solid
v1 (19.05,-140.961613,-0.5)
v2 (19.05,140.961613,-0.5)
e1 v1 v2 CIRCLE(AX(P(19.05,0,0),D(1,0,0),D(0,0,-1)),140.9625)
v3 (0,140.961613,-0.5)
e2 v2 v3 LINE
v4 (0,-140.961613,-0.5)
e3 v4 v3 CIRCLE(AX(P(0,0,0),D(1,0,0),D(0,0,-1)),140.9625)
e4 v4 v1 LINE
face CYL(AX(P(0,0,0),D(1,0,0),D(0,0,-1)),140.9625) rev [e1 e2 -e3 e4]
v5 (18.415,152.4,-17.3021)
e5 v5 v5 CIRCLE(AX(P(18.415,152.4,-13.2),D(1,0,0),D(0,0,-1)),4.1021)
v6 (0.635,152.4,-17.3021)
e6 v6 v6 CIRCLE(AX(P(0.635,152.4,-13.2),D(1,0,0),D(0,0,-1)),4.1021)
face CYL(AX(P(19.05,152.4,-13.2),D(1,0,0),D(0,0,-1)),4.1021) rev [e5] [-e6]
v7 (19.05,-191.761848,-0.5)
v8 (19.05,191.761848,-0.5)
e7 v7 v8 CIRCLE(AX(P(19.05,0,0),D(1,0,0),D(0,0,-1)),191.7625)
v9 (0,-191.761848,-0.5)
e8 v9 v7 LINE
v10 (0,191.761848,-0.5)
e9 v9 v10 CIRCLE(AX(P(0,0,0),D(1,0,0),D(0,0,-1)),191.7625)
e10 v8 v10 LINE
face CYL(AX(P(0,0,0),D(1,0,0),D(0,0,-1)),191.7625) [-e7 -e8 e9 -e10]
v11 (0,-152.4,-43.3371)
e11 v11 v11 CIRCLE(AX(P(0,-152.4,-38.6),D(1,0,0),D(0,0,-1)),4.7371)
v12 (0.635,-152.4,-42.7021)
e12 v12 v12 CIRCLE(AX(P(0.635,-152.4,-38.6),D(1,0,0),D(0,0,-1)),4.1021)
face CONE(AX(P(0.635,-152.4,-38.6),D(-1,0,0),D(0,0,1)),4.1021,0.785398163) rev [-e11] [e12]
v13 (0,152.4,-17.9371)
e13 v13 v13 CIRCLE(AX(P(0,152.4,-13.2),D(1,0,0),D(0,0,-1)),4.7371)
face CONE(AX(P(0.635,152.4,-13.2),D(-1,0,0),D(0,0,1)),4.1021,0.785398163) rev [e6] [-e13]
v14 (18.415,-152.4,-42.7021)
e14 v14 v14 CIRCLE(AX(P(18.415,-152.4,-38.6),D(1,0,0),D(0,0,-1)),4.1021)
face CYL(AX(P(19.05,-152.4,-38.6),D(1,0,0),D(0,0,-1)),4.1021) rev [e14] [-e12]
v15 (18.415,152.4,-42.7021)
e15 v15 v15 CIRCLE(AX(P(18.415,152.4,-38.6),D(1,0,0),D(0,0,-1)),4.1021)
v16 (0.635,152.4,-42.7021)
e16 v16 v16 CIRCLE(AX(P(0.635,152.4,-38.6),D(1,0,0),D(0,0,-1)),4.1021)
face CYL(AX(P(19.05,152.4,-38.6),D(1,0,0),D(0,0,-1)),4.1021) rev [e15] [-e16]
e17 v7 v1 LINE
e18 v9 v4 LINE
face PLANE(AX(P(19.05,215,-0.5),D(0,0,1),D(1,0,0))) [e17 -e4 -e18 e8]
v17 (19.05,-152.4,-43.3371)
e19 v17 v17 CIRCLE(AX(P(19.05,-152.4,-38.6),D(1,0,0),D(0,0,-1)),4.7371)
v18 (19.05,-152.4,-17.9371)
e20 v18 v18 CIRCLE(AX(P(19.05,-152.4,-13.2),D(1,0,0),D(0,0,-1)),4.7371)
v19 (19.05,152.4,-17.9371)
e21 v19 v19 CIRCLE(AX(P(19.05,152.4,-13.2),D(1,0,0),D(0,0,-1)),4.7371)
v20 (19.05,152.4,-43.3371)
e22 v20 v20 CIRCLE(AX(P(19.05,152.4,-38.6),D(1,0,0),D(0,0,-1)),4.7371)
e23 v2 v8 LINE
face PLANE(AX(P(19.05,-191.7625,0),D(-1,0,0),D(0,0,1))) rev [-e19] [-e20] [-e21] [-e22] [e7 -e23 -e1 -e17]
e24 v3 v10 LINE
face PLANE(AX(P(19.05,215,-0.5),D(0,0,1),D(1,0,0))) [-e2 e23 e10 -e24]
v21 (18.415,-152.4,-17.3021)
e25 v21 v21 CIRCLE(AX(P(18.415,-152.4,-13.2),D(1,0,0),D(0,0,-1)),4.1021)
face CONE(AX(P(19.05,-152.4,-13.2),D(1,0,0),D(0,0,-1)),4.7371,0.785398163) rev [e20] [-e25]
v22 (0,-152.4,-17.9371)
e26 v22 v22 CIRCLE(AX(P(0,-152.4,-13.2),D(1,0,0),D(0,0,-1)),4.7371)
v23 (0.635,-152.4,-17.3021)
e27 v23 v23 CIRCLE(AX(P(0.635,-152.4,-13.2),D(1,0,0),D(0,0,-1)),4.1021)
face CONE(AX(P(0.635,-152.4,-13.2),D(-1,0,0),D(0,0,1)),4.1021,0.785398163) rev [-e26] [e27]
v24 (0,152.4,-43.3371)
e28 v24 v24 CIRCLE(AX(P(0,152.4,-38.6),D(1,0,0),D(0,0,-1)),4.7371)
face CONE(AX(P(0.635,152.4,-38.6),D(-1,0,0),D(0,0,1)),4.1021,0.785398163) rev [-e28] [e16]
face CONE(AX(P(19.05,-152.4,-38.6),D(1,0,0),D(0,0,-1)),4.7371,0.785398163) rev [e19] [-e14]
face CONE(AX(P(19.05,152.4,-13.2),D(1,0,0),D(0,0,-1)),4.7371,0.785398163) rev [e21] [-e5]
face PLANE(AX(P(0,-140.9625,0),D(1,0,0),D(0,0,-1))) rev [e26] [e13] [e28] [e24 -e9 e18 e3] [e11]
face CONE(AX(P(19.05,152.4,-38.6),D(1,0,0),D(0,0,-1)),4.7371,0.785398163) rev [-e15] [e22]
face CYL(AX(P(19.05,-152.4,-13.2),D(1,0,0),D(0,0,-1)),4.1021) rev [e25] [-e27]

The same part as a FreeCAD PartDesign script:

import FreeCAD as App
import Part
import Sketcher
from FreeCAD import Vector
Q = App.Units.Quantity


def add_polygon(sketch, points):
    """Adds a closed chain of lines whose ends are joined by coincident constraints."""
    first, n = sketch.GeometryCount, len(points)
    for a, b in zip(points, points[1:] + points[:1]):
        sketch.addGeometry(Part.LineSegment(App.Vector(*a, 0), App.Vector(*b, 0)), False)
    for i in range(n):
        sketch.addConstraint(Sketcher.Constraint("Coincident", first + i, 2, first + (i + 1) % n, 1))

doc = App.newDocument("Part")
body = doc.addObject("PartDesign::Body", "Body")

# Sketch on XY plane
sketch1 = doc.addObject("Sketcher::SketchObject", "Sketch")
body.addObject(sketch1)
sketch1.AttachmentSupport = (doc.XY_Plane, [""])
sketch1.MapMode = "FlatFace"
add_polygon(sketch1, [(0, 191.7625), (0, 140.9625), (19.05, 140.9625), (19.05, 191.7625)])  # lines 0-3
sketch1.addConstraint(Sketcher.Constraint("Vertical", 0))
sketch1.addConstraint(Sketcher.Constraint("Horizontal", 1))
sketch1.addConstraint(Sketcher.Constraint("Vertical", 2))
sketch1.addConstraint(Sketcher.Constraint("Horizontal", 3))
sketch1.addConstraint(Sketcher.Constraint("PointOnObject", 0, 2, -2))
sketch1.addConstraint(Sketcher.Constraint("DistanceY", 0, 2, 0, 1, Q("2 in")))
sketch1.addConstraint(Sketcher.Constraint("DistanceX", 1, 1, 1, 2, Q("0.75 in")))
sketch1.addConstraint(Sketcher.Constraint("DistanceY", -1, 1, 0, 2, 140.9625))
revolution = doc.addObject("PartDesign::Revolution", "Revolution")
body.addObject(revolution)
revolution.Profile = sketch1
revolution.ReferenceAxis = (sketch1, ["H_Axis"])
revolution.Angle = 180
revolution.Reversed = True

# Sketch on YZ plane
sketch2 = doc.addObject("Sketcher::SketchObject", "Sketch001")
body.addObject(sketch2)
sketch2.AttachmentSupport = (doc.YZ_Plane, [""])
sketch2.MapMode = "FlatFace"
add_polygon(sketch2, [(215, 0), (-215, 0), (-215, -0.5), (215, -0.5)])  # lines 0-3
sketch2.addConstraint(Sketcher.Constraint("Horizontal", 0))
sketch2.addConstraint(Sketcher.Constraint("Vertical", 1))
sketch2.addConstraint(Sketcher.Constraint("Horizontal", 2))
sketch2.addConstraint(Sketcher.Constraint("Vertical", 3))
sketch2.addConstraint(Sketcher.Constraint("Symmetric", 0, 2, 3, 2, -1, 1))
sketch2.addConstraint(Sketcher.Constraint("DistanceX", 0, 2, 0, 1, 430.0))
sketch2.addConstraint(Sketcher.Constraint("DistanceY", 1, 2, 1, 1, 0.5))
pocket1 = doc.addObject("PartDesign::Pocket", "Pocket")
body.addObject(pocket1)
pocket1.Profile = sketch2
pocket1.Type = "ThroughAll"
pocket1.Reversed = True

# Sketch on XZ plane
sketch3 = doc.addObject("Sketcher::SketchObject", "Sketch002")
body.addObject(sketch3)
sketch3.AttachmentSupport = (doc.XZ_Plane, [""])
sketch3.MapMode = "FlatFace"
sketch3.AttachmentOffset = App.Placement(Vector(0, 0, -6 * 25.4), App.Rotation())
add_polygon(sketch3, [(0, -38.6), (19.05, -38.6), (19.05, -43.3371), (18.415, -42.7021), (0.635, -42.7021), (0, -43.3371)])  # lines 0-5
sketch3.addGeometry(Part.LineSegment(Vector(19.05, -38.6, 0), Vector(0, -38.6, 0)), True)  # axis
sketch3.addConstraint(Sketcher.Constraint("Horizontal", 0))
sketch3.addConstraint(Sketcher.Constraint("Vertical", 1))
sketch3.addConstraint(Sketcher.Constraint("Horizontal", 3))
sketch3.addConstraint(Sketcher.Constraint("Vertical", 5))
sketch3.addConstraint(Sketcher.Constraint("Horizontal", 6))
sketch3.addConstraint(Sketcher.Constraint("Coincident", 6, 1, 0, 2))
sketch3.addConstraint(Sketcher.Constraint("PointOnObject", 4, 2, -2))
sketch3.addConstraint(Sketcher.Constraint("PointOnObject", 6, 2, -2))
sketch3.addConstraint(Sketcher.Constraint("Perpendicular", 2, 4))
sketch3.addConstraint(Sketcher.Constraint("Horizontal", 1, 2, 4, 2))
sketch3.addConstraint(Sketcher.Constraint("Equal", 2, 4))
sketch3.addConstraint(Sketcher.Constraint("DistanceX", 3, 2, 3, 1, Q("0.7 in")))
sketch3.addConstraint(Sketcher.Constraint("DistanceX", 0, 1, 0, 2, Q("0.75 in")))
sketch3.addConstraint(Sketcher.Constraint("DistanceY", 1, 2, 1, 1, Q("0.1865 in")))
sketch3.addConstraint(Sketcher.Constraint("DistanceY", 0, 2, -1, 1, 38.6))
groove = doc.addObject("PartDesign::Groove", "Groove")
body.addObject(groove)
groove.Profile = sketch3
groove.ReferenceAxis = (sketch3, ["Axis0"])
groove.Angle = 360
doc.recompute()

linearpattern = doc.addObject("PartDesign::LinearPattern", "LinearPattern")
body.addObject(linearpattern)
linearpattern.Originals = [groove]
linearpattern.Direction = (doc.Z_Axis, [""])
linearpattern.Mode = "offset"
linearpattern.Offset = Q("1 in")
linearpattern.Occurrences = 2
body.Tip = linearpattern
doc.recompute()

linearpattern2 = doc.addObject("PartDesign::LinearPattern", "LinearPattern001")
body.addObject(linearpattern2)
linearpattern2.Originals = [groove]
linearpattern2.Direction = (doc.Y_Axis, [""])
linearpattern2.Mode = "offset"
linearpattern2.Offset = Q("12 in")
linearpattern2.Occurrences = 2
linearpattern2.Reversed = True
body.Tip = linearpattern2
doc.recompute()

datumline = doc.addObject("PartDesign::Line", "DatumLine")
body.addObject(datumline)
datumline.Placement = App.Placement(Vector(0, 0, 0), App.Rotation(Vector(0, 0, 1), Vector(0, -0.996545758, 0.08304548)))
linearpattern3 = doc.addObject("PartDesign::LinearPattern", "LinearPattern002")
body.addObject(linearpattern3)
linearpattern3.Originals = [groove]
linearpattern3.Direction = (datumline, [""])
linearpattern3.Mode = "offset"
linearpattern3.Offset = 305.856502
linearpattern3.Occurrences = 2
body.Tip = linearpattern3

doc.recompute()
